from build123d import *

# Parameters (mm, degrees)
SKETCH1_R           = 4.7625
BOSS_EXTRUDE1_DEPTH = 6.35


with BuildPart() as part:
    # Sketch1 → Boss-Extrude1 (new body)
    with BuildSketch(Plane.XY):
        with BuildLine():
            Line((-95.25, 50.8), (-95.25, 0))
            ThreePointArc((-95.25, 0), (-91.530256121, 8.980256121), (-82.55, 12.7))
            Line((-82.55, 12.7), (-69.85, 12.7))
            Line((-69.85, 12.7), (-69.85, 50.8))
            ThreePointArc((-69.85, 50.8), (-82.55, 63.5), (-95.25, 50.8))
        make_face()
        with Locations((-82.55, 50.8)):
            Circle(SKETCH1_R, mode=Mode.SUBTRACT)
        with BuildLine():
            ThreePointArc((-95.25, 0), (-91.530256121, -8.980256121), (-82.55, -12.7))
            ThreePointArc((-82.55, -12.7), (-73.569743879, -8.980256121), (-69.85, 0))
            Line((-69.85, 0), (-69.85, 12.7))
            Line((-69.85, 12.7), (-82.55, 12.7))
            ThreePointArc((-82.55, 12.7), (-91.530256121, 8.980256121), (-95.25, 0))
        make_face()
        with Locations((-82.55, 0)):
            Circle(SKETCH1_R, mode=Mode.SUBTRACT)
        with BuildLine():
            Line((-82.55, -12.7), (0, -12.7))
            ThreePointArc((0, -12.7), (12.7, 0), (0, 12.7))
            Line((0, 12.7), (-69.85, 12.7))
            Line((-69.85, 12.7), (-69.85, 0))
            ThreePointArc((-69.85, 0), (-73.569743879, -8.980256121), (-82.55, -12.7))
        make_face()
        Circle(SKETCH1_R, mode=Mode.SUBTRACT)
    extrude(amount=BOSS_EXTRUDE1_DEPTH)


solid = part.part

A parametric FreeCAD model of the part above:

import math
import FreeCAD as App
import Part
import Sketcher
from FreeCAD import Vector
Q = App.Units.Quantity

doc = App.newDocument("Part")
body = doc.addObject("PartDesign::Body", "Body")

# Sketch on XY plane
sketch1 = body.newObject("Sketcher::SketchObject", "Sketch")
sketch1.AttachmentSupport = (doc.getObject("XY_Plane"), [""])
sketch1.MapMode = "FlatFace"
sketch1.addGeometry([
    Part.LineSegment(Vector(-95.2, 50.8, 0), Vector(-95.2, 0, 0)),  # 0
    Part.ArcOfCircle(Part.Circle(Vector(-82.5, 0, 0), Vector(0, 0, 1), 12.7), math.radians(180), math.radians(270)),  # 1
    Part.LineSegment(Vector(-82.5, -12.7, 0), Vector(0, -12.7, 0)),  # 2
    Part.ArcOfCircle(Part.Circle(Vector(0, 0, 0), Vector(0, 0, 1), 12.7), math.radians(-90), math.radians(90)),  # 3
    Part.LineSegment(Vector(0, 12.7, 0), Vector(-69.8, 12.7, 0)),  # 4
    Part.LineSegment(Vector(-69.8, 12.7, 0), Vector(-69.8, 50.8, 0)),  # 5
    Part.ArcOfCircle(Part.Circle(Vector(-82.5, 50.8, 0), Vector(0, 0, 1), 12.7), math.radians(0), math.radians(180)),  # 6
    Part.Circle(Vector(-82.5, 0, 0), Vector(0, 0, 1), 4.8),  # 7
    Part.Circle(Vector(0, 0, 0), Vector(0, 0, 1), 4.8),  # 8
    Part.Circle(Vector(-82.5, 50.8, 0), Vector(0, 0, 1), 4.8),  # 9
], False)
sketch1.addConstraint([
    Sketcher.Constraint("Tangent", 0, 2, 1, 1),
    Sketcher.Constraint("Tangent", 1, 2, 2, 1),
    Sketcher.Constraint("Tangent", 2, 2, 3, 1),
    Sketcher.Constraint("Tangent", 3, 2, 4, 1),
    Sketcher.Constraint("Coincident", 4, 2, 5, 1),
    Sketcher.Constraint("Tangent", 5, 2, 6, 1),
    Sketcher.Constraint("Tangent", 6, 2, 0, 1),
    Sketcher.Constraint("Vertical", 0),
    Sketcher.Constraint("Horizontal", 2),
    Sketcher.Constraint("Horizontal", 4),
    Sketcher.Constraint("Vertical", 5),
    Sketcher.Constraint("Coincident", 3, 3, -1, 1),
    Sketcher.Constraint("Coincident", 8, 3, -1, 1),
    Sketcher.Constraint("Coincident", 7, 3, 1, 3),
    Sketcher.Constraint("Coincident", 9, 3, 6, 3),
    Sketcher.Constraint("Equal", 1, 3),
    Sketcher.Constraint("Equal", 3, 6),
    Sketcher.Constraint("Equal", 7, 8),
    Sketcher.Constraint("Equal", 8, 9),
    Sketcher.Constraint("Radius", 1, Q("0.5 in")),
    Sketcher.Constraint("DistanceY", 0, 2, 0, 1, Q("2 in")),
    Sketcher.Constraint("Diameter", 7, Q("0.375 in")),
    Sketcher.Constraint("DistanceX", 2, 1, 2, 2, Q("3.25 in")),
])
pad1 = body.newObject("PartDesign::Pad", "Pad")
pad1.Profile = sketch1
pad1.Length = Q("0.25 in")

doc.recompute()
